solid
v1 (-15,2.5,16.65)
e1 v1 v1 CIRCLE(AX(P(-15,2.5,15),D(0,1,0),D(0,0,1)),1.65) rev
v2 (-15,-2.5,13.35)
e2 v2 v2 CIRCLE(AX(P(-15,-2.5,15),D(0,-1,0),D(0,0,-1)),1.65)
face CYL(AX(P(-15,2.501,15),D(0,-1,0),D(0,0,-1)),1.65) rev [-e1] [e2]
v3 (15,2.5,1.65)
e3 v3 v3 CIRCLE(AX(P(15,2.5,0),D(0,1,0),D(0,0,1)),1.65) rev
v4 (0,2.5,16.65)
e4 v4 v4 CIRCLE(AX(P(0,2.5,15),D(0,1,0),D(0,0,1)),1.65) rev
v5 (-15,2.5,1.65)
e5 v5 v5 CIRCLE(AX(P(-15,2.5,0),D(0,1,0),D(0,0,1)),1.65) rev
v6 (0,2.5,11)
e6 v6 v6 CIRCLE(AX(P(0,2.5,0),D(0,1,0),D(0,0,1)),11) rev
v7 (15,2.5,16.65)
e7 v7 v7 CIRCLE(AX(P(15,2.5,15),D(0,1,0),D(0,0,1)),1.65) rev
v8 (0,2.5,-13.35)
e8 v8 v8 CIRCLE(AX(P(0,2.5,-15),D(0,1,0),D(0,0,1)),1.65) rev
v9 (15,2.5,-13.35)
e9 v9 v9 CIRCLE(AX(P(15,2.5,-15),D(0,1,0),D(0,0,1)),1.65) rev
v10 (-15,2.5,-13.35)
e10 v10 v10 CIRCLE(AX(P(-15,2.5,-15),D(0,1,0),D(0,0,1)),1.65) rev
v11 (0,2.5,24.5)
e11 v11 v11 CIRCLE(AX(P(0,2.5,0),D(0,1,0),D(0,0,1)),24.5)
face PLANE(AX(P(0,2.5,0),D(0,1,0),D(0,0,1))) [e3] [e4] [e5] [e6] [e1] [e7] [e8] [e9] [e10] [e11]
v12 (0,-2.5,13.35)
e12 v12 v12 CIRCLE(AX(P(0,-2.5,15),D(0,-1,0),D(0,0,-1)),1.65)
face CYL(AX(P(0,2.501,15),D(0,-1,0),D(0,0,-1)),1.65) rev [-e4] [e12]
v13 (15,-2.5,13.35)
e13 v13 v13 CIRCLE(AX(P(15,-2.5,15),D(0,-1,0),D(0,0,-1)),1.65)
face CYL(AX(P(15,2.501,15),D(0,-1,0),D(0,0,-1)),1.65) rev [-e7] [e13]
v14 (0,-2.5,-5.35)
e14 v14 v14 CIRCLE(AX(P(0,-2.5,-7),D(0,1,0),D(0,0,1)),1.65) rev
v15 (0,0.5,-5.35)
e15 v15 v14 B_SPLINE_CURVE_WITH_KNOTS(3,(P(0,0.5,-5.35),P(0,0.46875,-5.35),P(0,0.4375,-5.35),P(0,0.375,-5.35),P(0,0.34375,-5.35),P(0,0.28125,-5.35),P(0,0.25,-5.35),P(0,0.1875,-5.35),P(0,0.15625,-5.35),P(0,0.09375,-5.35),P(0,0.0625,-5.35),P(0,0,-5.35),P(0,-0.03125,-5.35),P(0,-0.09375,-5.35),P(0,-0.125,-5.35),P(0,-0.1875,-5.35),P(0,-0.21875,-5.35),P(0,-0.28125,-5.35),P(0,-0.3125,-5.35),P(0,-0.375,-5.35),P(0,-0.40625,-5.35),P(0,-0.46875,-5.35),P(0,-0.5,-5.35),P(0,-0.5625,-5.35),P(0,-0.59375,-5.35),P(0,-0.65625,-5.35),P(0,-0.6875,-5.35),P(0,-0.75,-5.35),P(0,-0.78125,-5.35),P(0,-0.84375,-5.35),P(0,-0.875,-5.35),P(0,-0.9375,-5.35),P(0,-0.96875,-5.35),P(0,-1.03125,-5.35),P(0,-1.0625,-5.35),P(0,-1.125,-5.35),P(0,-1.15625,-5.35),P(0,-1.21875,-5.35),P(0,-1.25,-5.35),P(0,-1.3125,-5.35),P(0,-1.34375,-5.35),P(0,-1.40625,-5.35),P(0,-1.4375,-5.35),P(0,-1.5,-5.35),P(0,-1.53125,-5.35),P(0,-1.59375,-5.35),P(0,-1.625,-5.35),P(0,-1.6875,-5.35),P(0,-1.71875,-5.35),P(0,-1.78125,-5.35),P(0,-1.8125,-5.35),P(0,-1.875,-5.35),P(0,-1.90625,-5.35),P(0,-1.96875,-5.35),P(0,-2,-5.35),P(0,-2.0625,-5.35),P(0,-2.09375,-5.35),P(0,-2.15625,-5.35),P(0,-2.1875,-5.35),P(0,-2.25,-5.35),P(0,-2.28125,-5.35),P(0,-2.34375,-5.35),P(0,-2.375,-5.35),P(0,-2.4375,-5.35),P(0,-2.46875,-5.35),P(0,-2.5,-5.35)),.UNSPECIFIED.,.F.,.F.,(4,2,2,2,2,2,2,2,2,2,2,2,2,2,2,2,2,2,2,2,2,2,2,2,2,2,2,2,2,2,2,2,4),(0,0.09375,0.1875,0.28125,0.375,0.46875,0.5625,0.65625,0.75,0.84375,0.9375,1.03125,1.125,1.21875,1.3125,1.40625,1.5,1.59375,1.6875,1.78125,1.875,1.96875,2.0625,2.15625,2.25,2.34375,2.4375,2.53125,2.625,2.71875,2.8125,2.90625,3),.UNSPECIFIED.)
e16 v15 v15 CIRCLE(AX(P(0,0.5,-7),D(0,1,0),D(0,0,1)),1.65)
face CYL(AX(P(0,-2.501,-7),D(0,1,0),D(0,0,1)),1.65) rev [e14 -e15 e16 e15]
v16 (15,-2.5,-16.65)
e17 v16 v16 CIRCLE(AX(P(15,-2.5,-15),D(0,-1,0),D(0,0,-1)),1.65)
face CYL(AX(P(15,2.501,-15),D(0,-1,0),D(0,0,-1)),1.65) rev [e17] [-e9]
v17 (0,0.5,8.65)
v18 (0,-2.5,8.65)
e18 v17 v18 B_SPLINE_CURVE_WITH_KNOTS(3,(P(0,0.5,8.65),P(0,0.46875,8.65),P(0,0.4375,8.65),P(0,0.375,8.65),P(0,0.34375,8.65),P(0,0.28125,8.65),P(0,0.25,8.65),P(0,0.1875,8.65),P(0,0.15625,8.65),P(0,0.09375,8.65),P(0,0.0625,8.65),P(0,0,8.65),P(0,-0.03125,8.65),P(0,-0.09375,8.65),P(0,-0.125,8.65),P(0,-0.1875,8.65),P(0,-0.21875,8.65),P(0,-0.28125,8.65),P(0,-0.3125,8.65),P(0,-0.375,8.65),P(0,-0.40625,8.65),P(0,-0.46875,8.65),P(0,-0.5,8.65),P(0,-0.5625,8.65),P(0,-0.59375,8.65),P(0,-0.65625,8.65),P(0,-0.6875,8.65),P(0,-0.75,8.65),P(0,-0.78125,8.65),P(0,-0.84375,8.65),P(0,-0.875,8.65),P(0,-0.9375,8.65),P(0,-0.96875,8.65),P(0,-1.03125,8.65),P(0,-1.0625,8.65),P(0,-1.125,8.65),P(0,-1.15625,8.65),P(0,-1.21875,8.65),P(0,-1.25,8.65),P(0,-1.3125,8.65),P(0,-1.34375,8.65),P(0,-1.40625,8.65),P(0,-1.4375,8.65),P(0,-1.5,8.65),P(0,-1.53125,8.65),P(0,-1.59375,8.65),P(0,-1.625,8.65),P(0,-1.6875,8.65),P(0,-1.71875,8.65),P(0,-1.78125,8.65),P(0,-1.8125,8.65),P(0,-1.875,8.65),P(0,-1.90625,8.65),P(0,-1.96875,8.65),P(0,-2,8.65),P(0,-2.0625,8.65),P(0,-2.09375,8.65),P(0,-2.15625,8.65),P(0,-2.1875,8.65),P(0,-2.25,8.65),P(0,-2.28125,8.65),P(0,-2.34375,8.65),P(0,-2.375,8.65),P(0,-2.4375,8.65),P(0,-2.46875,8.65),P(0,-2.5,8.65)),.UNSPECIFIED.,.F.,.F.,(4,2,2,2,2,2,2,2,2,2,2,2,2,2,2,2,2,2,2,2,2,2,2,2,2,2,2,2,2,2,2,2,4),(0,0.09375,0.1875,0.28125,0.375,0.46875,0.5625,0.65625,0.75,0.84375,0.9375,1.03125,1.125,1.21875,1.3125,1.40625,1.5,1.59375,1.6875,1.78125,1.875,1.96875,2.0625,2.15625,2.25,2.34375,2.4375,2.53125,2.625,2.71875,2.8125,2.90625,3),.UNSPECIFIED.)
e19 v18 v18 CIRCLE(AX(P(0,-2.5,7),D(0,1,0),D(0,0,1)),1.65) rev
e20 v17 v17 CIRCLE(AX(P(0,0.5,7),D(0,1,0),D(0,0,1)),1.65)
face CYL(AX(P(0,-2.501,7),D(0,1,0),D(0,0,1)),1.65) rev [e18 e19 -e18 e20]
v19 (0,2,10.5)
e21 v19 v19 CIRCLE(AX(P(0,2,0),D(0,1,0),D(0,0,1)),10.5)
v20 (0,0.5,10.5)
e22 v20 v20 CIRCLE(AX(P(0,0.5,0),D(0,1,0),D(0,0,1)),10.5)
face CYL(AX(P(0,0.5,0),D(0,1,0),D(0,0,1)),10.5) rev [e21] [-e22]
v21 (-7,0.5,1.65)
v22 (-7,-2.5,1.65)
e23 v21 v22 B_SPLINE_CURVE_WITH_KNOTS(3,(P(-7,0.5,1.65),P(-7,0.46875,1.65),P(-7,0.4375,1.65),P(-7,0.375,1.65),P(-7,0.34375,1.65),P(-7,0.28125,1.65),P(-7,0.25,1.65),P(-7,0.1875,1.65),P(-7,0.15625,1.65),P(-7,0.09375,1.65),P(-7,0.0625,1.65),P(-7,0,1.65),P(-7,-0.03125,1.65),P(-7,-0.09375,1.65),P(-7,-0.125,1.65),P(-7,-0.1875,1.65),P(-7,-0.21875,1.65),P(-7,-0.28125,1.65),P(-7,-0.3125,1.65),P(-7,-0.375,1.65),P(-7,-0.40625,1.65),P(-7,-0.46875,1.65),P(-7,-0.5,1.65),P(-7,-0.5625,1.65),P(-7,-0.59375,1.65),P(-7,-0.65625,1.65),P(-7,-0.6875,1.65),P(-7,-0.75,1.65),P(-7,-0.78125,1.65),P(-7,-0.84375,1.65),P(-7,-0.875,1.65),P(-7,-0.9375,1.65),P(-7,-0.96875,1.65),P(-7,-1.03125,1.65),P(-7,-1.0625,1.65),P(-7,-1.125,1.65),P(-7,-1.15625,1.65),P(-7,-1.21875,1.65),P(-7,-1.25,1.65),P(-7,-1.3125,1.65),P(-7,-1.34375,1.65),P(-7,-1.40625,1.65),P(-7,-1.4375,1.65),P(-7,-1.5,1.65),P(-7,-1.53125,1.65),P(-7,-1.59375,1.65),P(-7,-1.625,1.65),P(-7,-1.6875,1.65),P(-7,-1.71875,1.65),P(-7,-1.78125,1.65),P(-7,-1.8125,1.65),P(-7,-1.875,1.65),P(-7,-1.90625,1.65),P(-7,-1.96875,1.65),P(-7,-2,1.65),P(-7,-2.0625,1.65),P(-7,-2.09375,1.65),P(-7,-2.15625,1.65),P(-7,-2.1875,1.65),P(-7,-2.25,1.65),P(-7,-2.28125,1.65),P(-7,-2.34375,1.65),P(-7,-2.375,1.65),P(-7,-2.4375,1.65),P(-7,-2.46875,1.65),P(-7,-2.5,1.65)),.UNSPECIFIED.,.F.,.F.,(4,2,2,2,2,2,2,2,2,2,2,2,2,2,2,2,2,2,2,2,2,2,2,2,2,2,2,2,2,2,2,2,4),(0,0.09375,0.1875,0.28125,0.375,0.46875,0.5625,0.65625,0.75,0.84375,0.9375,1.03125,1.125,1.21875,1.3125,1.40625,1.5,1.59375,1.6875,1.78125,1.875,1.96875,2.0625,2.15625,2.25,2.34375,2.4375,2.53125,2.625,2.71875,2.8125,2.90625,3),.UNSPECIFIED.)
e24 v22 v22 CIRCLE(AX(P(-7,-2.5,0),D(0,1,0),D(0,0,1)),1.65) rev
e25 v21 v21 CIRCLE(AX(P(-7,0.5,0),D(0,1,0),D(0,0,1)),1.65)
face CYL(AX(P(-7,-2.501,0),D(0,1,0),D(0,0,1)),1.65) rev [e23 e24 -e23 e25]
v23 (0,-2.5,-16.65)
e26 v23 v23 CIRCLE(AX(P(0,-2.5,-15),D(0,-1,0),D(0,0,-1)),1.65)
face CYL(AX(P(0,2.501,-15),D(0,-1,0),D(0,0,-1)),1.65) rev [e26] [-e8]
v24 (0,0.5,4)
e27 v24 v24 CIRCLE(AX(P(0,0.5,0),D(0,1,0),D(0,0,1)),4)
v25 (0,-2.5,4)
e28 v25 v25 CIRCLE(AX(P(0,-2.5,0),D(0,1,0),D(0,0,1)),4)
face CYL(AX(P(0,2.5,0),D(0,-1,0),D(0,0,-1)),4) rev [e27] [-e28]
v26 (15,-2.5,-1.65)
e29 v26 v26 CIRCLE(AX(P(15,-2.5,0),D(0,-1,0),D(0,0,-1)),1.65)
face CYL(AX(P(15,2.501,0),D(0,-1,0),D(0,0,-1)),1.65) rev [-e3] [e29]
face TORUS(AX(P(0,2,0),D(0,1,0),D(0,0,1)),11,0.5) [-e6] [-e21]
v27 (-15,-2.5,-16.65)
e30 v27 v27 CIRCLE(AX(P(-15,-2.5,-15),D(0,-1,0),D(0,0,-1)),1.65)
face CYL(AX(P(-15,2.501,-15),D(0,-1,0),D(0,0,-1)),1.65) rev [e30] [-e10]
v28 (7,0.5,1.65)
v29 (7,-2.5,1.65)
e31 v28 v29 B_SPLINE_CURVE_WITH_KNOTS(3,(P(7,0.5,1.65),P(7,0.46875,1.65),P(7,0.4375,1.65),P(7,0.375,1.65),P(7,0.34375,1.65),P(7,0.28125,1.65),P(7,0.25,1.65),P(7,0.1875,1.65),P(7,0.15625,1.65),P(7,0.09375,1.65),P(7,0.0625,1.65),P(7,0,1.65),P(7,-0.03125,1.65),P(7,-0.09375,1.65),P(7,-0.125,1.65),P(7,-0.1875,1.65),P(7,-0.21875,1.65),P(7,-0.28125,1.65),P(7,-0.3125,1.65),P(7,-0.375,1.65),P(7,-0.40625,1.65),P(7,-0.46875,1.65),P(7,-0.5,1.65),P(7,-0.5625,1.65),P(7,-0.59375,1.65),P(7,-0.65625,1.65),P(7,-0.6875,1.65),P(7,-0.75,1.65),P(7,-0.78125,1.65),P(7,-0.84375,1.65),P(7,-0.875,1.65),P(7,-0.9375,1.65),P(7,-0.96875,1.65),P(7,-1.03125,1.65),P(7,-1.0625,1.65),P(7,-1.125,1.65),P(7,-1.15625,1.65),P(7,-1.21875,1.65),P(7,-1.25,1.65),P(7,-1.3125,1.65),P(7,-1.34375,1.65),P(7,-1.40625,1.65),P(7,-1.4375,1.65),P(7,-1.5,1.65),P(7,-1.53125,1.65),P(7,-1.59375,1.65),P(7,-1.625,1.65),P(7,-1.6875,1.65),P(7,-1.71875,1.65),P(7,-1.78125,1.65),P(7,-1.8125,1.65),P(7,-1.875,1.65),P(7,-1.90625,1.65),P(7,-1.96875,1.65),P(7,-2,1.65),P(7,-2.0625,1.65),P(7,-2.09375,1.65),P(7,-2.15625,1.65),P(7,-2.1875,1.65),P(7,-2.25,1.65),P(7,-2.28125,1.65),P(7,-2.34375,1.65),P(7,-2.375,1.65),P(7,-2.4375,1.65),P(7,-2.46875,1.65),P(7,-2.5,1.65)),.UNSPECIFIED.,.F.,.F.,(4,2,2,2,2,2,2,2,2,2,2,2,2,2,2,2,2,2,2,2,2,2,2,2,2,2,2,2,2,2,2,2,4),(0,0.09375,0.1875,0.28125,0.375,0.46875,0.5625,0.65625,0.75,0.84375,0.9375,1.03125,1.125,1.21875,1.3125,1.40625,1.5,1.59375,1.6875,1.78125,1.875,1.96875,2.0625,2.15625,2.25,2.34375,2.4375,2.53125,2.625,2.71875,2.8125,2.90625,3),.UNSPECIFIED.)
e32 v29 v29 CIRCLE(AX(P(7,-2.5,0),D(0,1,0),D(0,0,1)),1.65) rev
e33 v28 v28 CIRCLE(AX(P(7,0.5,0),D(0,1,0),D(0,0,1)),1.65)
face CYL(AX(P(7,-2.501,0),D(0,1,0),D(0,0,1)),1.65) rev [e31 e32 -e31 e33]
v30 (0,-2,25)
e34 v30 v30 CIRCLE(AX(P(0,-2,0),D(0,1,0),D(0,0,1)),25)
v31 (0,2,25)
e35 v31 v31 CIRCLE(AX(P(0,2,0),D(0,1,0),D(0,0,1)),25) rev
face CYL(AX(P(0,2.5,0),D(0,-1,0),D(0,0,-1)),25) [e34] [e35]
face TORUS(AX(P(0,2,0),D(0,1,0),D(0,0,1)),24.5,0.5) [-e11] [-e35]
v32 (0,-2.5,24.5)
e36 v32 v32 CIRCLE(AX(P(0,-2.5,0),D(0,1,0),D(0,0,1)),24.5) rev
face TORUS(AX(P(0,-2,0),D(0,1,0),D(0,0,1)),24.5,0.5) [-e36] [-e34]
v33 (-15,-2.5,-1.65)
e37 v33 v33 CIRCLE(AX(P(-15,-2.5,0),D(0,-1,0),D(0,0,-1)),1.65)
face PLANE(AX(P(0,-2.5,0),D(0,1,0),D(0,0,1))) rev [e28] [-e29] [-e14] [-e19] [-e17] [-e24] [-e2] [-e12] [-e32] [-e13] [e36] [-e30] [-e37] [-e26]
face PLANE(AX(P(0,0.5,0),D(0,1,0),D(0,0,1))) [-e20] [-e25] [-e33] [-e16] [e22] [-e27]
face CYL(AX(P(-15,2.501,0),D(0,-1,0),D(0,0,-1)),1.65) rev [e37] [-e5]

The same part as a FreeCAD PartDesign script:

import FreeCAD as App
import Part
import Sketcher


def edges_at(feature, points):
    """Names of the edges that pass closest to the given points."""
    edges = feature.Shape.Edges
    near = lambda p: min(range(len(edges)), key=lambda i: edges[i].distToShape(Part.Vertex(*p))[0])
    return sorted({f"Edge{near(p) + 1}" for p in points})

doc = App.newDocument("Part")
body = doc.addObject("PartDesign::Body", "Body")

# Sketch on XZ plane
sketch1 = body.newObject("Sketcher::SketchObject", "Sketch")
sketch1.AttachmentSupport = (doc.getObject("XZ_Plane"), [""])
sketch1.MapMode = "FlatFace"
sketch1.addGeometry([
    Part.Circle(App.Vector(0, 0, 0), App.Vector(0, 0, 1), 25),
    Part.Circle(App.Vector(0, 0, 0), App.Vector(0, 0, 1), 4),
], False)
sketch1.addConstraint([
    Sketcher.Constraint("Coincident", 0, 3, -1, 1),
    Sketcher.Constraint("Coincident", 1, 3, -1, 1),
    Sketcher.Constraint("Diameter", 0, 50.0),
    Sketcher.Constraint("Diameter", 1, 8.0),
])
pad1 = body.newObject("PartDesign::Pad", "Pad")
pad1.Profile = sketch1
pad1.Length = 5
pad1.Midplane = True

# Sketch on XZ plane
sketch2 = body.newObject("Sketcher::SketchObject", "Sketch001")
sketch2.AttachmentSupport = (doc.getObject("XZ_Plane"), [""])
sketch2.MapMode = "FlatFace"
sketch2.AttachmentOffset = App.Placement(App.Vector(0, 0, -2.5), App.Rotation())
sketch2.addGeometry(Part.Circle(App.Vector(0, 0, 0), App.Vector(0, 0, 1), 10), False)
sketch2.addConstraint([
    Sketcher.Constraint("Coincident", 0, 3, -1, 1),
    Sketcher.Constraint("Diameter", 0, 21.0),
])
pocket1 = body.newObject("PartDesign::Pocket", "Pocket")
pocket1.Profile = sketch2
pocket1.Length = 2
pocket1.Reversed = True

# Sketch on XZ plane
sketch3 = body.newObject("Sketcher::SketchObject", "Sketch002")
sketch3.AttachmentSupport = (doc.getObject("XZ_Plane"), [""])
sketch3.MapMode = "FlatFace"
sketch3.AttachmentOffset = App.Placement(App.Vector(0, 0, 2.5), App.Rotation())
sketch3.addGeometry(Part.Circle(App.Vector(-15, 15, 0), App.Vector(0, 0, 1), 1.6), False)
sketch3.addConstraint([
    Sketcher.Constraint("Diameter", 0, 3.3),
    Sketcher.Constraint("DistanceX", 0, 3, -1, 1, 15.0),
    Sketcher.Constraint("DistanceY", -1, 1, 0, 3, 15.0),
])
pocket2 = body.newObject("PartDesign::Pocket", "Pocket001")
pocket2.Profile = sketch3
pocket2.Type = "UpToFirst"

# Sketch on XZ plane
sketch4 = body.newObject("Sketcher::SketchObject", "Sketch003")
sketch4.AttachmentSupport = (doc.getObject("XZ_Plane"), [""])
sketch4.MapMode = "FlatFace"
sketch4.AttachmentOffset = App.Placement(App.Vector(0, 0, 2.5), App.Rotation())
sketch4.addGeometry(Part.Circle(App.Vector(15, 15, 0), App.Vector(0, 0, 1), 1.6), False)
sketch4.addConstraint([
    Sketcher.Constraint("Diameter", 0, 3.3),
    Sketcher.Constraint("DistanceX", -1, 1, 0, 3, 15.0),
    Sketcher.Constraint("DistanceY", -1, 1, 0, 3, 15.0),
])
pocket3 = body.newObject("PartDesign::Pocket", "Pocket002")
pocket3.Profile = sketch4
pocket3.Type = "UpToFirst"

# Sketch on XZ plane
sketch5 = body.newObject("Sketcher::SketchObject", "Sketch004")
sketch5.AttachmentSupport = (doc.getObject("XZ_Plane"), [""])
sketch5.MapMode = "FlatFace"
sketch5.AttachmentOffset = App.Placement(App.Vector(0, 0, 2.5), App.Rotation())
sketch5.addGeometry(Part.Circle(App.Vector(15, -15, 0), App.Vector(0, 0, 1), 1.6), False)
sketch5.addConstraint([
    Sketcher.Constraint("Diameter", 0, 3.3),
    Sketcher.Constraint("DistanceX", -1, 1, 0, 3, 15.0),
    Sketcher.Constraint("DistanceY", 0, 3, -1, 1, 15.0),
])
pocket4 = body.newObject("PartDesign::Pocket", "Pocket003")
pocket4.Profile = sketch5
pocket4.Type = "UpToFirst"

# Sketch on XZ plane
sketch6 = body.newObject("Sketcher::SketchObject", "Sketch005")
sketch6.AttachmentSupport = (doc.getObject("XZ_Plane"), [""])
sketch6.MapMode = "FlatFace"
sketch6.AttachmentOffset = App.Placement(App.Vector(0, 0, 2.5), App.Rotation())
sketch6.addGeometry(Part.Circle(App.Vector(-15, -15, 0), App.Vector(0, 0, 1), 1.6), False)
sketch6.addConstraint([
    Sketcher.Constraint("Diameter", 0, 3.3),
    Sketcher.Constraint("DistanceX", 0, 3, -1, 1, 15.0),
    Sketcher.Constraint("DistanceY", 0, 3, -1, 1, 15.0),
])
pocket5 = body.newObject("PartDesign::Pocket", "Pocket004")
pocket5.Profile = sketch6
pocket5.Type = "UpToFirst"

# Sketch on XZ plane
sketch7 = body.newObject("Sketcher::SketchObject", "Sketch006")
sketch7.AttachmentSupport = (doc.getObject("XZ_Plane"), [""])
sketch7.MapMode = "FlatFace"
sketch7.AttachmentOffset = App.Placement(App.Vector(0, 0, 2.5), App.Rotation())
sketch7.addGeometry(Part.Circle(App.Vector(0, 15, 0), App.Vector(0, 0, 1), 1.6), False)
sketch7.addConstraint([
    Sketcher.Constraint("PointOnObject", 0, 3, -2),
    Sketcher.Constraint("Diameter", 0, 3.3),
    Sketcher.Constraint("DistanceY", -1, 1, 0, 3, 15.0),
])
pocket6 = body.newObject("PartDesign::Pocket", "Pocket005")
pocket6.Profile = sketch7
pocket6.Type = "UpToFirst"

# Sketch on XZ plane
sketch8 = body.newObject("Sketcher::SketchObject", "Sketch007")
sketch8.AttachmentSupport = (doc.getObject("XZ_Plane"), [""])
sketch8.MapMode = "FlatFace"
sketch8.AttachmentOffset = App.Placement(App.Vector(0, 0, 2.5), App.Rotation())
sketch8.addGeometry(Part.Circle(App.Vector(15, 0, 0), App.Vector(0, 0, 1), 1.6), False)
sketch8.addConstraint([
    Sketcher.Constraint("PointOnObject", 0, 3, -1),
    Sketcher.Constraint("Diameter", 0, 3.3),
    Sketcher.Constraint("DistanceX", -1, 1, 0, 3, 15.0),
])
pocket7 = body.newObject("PartDesign::Pocket", "Pocket006")
pocket7.Profile = sketch8
pocket7.Type = "UpToFirst"

# Sketch on XZ plane
sketch9 = body.newObject("Sketcher::SketchObject", "Sketch008")
sketch9.AttachmentSupport = (doc.getObject("XZ_Plane"), [""])
sketch9.MapMode = "FlatFace"
sketch9.AttachmentOffset = App.Placement(App.Vector(0, 0, 2.5), App.Rotation())
sketch9.addGeometry(Part.Circle(App.Vector(0, -15, 0), App.Vector(0, 0, 1), 1.6), False)
sketch9.addConstraint([
    Sketcher.Constraint("PointOnObject", 0, 3, -2),
    Sketcher.Constraint("Diameter", 0, 3.3),
    Sketcher.Constraint("DistanceY", 0, 3, -1, 1, 15.0),
])
pocket8 = body.newObject("PartDesign::Pocket", "Pocket007")
pocket8.Profile = sketch9
pocket8.Type = "UpToFirst"

# Sketch on XZ plane
sketch10 = body.newObject("Sketcher::SketchObject", "Sketch009")
sketch10.AttachmentSupport = (doc.getObject("XZ_Plane"), [""])
sketch10.MapMode = "FlatFace"
sketch10.AttachmentOffset = App.Placement(App.Vector(0, 0, 2.5), App.Rotation())
sketch10.addGeometry(Part.Circle(App.Vector(-15, 0, 0), App.Vector(0, 0, 1), 1.6), False)
sketch10.addConstraint([
    Sketcher.Constraint("PointOnObject", 0, 3, -1),
    Sketcher.Constraint("Diameter", 0, 3.3),
    Sketcher.Constraint("DistanceX", 0, 3, -1, 1, 15.0),
])
pocket9 = body.newObject("PartDesign::Pocket", "Pocket008")
pocket9.Profile = sketch10
pocket9.Type = "UpToFirst"
doc.recompute()

fillet = body.newObject("PartDesign::Fillet", "Fillet")
fillet.Base = (pocket9, edges_at(pocket9, [(0, 2.5, -10.5), (0, -2.5, -25), (0, 2.5, -25)]))
fillet.Radius = 0.5

# Sketch on XZ plane
sketch11 = body.newObject("Sketcher::SketchObject", "Sketch010")
sketch11.AttachmentSupport = (doc.getObject("XZ_Plane"), [""])
sketch11.MapMode = "FlatFace"
sketch11.AttachmentOffset = App.Placement(App.Vector(0, 0, -0.5), App.Rotation())
sketch11.addGeometry(Part.Circle(App.Vector(0, -7, 0), App.Vector(0, 0, 1), 1.6), False)
sketch11.addConstraint([
    Sketcher.Constraint("PointOnObject", 0, 3, -2),
    Sketcher.Constraint("Diameter", 0, 3.3),
    Sketcher.Constraint("DistanceY", 0, 3, -1, 1, 7.0),
])
pocket10 = body.newObject("PartDesign::Pocket", "Pocket009")
pocket10.Profile = sketch11
pocket10.Type = "UpToFirst"
pocket10.Reversed = True

# Sketch on XZ plane
sketch12 = body.newObject("Sketcher::SketchObject", "Sketch011")
sketch12.AttachmentSupport = (doc.getObject("XZ_Plane"), [""])
sketch12.MapMode = "FlatFace"
sketch12.AttachmentOffset = App.Placement(App.Vector(0, 0, -0.5), App.Rotation())
sketch12.addGeometry(Part.Circle(App.Vector(0, 7, 0), App.Vector(0, 0, 1), 1.6), False)
sketch12.addConstraint([
    Sketcher.Constraint("PointOnObject", 0, 3, -2),
    Sketcher.Constraint("Diameter", 0, 3.3),
    Sketcher.Constraint("DistanceY", -1, 1, 0, 3, 7.0),
])
pocket11 = body.newObject("PartDesign::Pocket", "Pocket010")
pocket11.Profile = sketch12
pocket11.Type = "UpToFirst"
pocket11.Reversed = True

# Sketch on XZ plane
sketch13 = body.newObject("Sketcher::SketchObject", "Sketch012")
sketch13.AttachmentSupport = (doc.getObject("XZ_Plane"), [""])
sketch13.MapMode = "FlatFace"
sketch13.AttachmentOffset = App.Placement(App.Vector(0, 0, -0.5), App.Rotation())
sketch13.addGeometry(Part.Circle(App.Vector(7, 0, 0), App.Vector(0, 0, 1), 1.6), False)
sketch13.addConstraint([
    Sketcher.Constraint("PointOnObject", 0, 3, -1),
    Sketcher.Constraint("Diameter", 0, 3.3),
    Sketcher.Constraint("DistanceX", -1, 1, 0, 3, 7.0),
])
pocket12 = body.newObject("PartDesign::Pocket", "Pocket011")
pocket12.Profile = sketch13
pocket12.Type = "UpToFirst"
pocket12.Reversed = True

# Sketch on XZ plane
sketch14 = body.newObject("Sketcher::SketchObject", "Sketch013")
sketch14.AttachmentSupport = (doc.getObject("XZ_Plane"), [""])
sketch14.MapMode = "FlatFace"
sketch14.AttachmentOffset = App.Placement(App.Vector(0, 0, -0.5), App.Rotation())
sketch14.addGeometry(Part.Circle(App.Vector(-7, 0, 0), App.Vector(0, 0, 1), 1.6), False)
sketch14.addConstraint([
    Sketcher.Constraint("PointOnObject", 0, 3, -1),
    Sketcher.Constraint("Diameter", 0, 3.3),
    Sketcher.Constraint("DistanceX", 0, 3, -1, 1, 7.0),
])
pocket13 = body.newObject("PartDesign::Pocket", "Pocket012")
pocket13.Profile = sketch14
pocket13.Type = "UpToFirst"
pocket13.Reversed = True

doc.recompute()
